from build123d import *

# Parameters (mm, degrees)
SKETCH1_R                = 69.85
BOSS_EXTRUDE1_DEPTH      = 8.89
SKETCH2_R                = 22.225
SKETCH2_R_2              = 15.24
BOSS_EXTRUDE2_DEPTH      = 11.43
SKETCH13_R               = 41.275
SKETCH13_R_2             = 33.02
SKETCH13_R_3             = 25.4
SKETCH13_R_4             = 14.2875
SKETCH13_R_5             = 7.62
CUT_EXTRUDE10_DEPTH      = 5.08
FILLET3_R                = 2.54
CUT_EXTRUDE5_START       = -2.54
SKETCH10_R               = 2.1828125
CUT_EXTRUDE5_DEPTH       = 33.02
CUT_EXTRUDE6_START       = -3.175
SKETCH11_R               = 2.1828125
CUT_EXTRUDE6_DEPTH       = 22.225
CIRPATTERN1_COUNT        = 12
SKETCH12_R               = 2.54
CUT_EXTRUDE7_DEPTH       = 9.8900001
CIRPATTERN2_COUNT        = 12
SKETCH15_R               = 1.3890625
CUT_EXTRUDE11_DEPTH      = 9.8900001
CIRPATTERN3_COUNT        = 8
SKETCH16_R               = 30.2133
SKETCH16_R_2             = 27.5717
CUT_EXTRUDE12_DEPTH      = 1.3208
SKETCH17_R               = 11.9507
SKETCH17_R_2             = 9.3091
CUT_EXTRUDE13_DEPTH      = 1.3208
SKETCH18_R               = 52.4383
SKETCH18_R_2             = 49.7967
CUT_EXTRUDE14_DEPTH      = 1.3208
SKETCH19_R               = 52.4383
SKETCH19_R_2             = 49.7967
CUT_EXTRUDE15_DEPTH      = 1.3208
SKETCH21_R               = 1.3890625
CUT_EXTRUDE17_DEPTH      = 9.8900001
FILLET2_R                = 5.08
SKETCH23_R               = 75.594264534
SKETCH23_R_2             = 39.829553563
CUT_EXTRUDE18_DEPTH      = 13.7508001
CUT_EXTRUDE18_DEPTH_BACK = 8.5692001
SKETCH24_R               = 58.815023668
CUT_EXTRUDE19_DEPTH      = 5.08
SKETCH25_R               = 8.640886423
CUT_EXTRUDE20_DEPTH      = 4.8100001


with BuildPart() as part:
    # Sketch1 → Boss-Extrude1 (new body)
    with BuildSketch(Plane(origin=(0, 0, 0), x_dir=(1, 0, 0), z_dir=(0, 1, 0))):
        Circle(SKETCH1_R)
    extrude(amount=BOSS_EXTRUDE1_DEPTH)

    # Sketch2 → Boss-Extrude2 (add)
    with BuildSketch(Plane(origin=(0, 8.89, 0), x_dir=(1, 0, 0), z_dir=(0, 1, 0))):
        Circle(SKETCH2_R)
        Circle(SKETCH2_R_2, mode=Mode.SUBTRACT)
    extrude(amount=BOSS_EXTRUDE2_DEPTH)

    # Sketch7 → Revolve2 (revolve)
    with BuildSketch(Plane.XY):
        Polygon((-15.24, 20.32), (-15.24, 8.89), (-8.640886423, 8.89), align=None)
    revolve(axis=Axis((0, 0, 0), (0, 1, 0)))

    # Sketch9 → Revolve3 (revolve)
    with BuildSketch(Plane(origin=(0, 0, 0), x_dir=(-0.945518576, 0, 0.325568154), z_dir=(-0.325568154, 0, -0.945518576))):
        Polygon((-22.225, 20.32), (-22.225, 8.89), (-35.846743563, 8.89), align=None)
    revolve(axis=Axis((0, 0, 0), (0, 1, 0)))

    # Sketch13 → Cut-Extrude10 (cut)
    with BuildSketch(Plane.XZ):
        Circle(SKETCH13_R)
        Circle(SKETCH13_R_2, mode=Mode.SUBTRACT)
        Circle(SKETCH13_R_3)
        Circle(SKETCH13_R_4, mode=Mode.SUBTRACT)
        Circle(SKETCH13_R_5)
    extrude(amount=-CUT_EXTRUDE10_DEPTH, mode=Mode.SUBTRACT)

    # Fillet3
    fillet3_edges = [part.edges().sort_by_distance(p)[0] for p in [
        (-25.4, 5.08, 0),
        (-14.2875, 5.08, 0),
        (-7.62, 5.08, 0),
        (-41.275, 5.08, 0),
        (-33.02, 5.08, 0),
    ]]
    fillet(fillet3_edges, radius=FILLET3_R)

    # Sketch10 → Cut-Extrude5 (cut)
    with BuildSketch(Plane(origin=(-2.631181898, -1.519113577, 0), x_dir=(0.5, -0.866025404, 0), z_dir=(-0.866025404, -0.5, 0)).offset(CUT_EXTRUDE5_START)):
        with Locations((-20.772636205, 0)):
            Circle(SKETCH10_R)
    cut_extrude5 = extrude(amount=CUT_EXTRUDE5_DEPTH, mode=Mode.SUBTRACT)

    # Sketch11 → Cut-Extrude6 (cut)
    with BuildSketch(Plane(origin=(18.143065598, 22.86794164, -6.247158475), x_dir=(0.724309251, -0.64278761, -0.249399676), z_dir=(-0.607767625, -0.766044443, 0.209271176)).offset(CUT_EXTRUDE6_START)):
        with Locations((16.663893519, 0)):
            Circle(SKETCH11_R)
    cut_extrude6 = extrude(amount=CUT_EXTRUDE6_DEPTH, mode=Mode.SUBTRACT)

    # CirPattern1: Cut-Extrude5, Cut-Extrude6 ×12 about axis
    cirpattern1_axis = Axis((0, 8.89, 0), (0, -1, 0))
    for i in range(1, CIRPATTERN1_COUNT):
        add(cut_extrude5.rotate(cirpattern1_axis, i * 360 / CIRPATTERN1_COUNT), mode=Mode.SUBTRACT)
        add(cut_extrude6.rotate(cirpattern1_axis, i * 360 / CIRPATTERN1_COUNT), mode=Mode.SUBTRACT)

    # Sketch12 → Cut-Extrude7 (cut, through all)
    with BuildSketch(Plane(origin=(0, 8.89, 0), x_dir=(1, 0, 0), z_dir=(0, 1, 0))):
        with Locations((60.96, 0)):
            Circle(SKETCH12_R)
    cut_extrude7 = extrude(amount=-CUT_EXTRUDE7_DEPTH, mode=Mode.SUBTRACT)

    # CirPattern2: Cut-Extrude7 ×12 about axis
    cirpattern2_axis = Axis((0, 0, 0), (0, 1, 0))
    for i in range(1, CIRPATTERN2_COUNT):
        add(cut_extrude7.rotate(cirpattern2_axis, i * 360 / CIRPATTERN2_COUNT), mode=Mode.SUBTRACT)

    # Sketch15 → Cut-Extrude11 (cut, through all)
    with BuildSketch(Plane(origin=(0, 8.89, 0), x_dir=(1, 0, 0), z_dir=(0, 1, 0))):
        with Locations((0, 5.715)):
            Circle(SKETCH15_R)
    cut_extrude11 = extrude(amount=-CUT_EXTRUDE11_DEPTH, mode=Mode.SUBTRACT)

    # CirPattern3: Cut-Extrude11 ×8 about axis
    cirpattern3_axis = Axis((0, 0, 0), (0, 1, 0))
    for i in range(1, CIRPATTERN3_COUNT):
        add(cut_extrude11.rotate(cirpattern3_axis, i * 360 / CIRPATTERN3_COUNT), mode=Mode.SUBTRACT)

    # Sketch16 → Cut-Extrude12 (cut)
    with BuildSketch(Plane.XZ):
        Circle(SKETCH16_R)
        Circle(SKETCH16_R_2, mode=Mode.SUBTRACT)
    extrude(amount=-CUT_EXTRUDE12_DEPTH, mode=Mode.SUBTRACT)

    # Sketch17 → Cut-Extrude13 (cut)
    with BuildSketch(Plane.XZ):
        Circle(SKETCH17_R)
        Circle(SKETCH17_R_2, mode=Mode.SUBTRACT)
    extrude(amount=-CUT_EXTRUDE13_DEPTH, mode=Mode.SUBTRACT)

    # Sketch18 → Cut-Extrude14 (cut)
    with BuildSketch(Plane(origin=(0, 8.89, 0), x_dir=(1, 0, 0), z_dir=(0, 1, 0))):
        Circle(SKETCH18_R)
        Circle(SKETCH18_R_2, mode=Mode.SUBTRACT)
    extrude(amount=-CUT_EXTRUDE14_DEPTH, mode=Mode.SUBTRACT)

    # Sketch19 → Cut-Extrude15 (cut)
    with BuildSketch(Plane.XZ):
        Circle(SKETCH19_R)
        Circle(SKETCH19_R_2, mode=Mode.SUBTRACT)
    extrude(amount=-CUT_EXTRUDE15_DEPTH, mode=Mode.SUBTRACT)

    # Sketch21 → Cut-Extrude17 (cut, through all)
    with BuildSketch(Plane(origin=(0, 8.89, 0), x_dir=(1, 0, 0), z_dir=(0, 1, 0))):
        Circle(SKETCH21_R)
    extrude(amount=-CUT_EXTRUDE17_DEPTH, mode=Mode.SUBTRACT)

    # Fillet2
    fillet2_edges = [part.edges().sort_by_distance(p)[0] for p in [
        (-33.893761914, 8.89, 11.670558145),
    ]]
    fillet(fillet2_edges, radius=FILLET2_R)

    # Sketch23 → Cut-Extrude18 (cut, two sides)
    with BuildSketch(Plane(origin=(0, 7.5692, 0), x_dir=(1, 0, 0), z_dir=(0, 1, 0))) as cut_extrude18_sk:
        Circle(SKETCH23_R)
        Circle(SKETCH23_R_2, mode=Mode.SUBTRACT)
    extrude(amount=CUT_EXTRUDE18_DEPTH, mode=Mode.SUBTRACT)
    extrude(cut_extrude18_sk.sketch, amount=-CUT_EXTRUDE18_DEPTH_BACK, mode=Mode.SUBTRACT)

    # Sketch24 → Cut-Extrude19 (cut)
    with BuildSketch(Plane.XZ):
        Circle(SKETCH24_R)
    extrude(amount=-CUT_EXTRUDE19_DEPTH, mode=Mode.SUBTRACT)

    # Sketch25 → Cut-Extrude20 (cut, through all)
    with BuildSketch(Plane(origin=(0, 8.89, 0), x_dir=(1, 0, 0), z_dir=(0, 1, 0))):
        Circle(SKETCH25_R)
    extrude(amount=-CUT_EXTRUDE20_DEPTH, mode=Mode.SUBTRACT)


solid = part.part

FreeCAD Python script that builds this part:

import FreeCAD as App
import Part
import Sketcher
from FreeCAD import Vector
Q = App.Units.Quantity


def edges_at(feature, points):
    """Names of the edges that pass closest to the given points."""
    edges = feature.Shape.Edges
    near = lambda p: min(range(len(edges)), key=lambda i: edges[i].distToShape(Part.Vertex(*p))[0])
    return sorted({f"Edge{near(p) + 1}" for p in points})

doc = App.newDocument("Part")
body = doc.addObject("PartDesign::Body", "Body")

sketch1 = body.newObject("Sketcher::SketchObject", "Sketch")
sketch1.AttachmentSupport = (doc.getObject("XZ_Plane"), [""])
sketch1.MapMode = "FlatFace"
sketch1.addGeometry(Part.Circle(Vector(0, 0, 0), Vector(0, 0, 1), 69.85), False)
sketch1.addConstraint(Sketcher.Constraint("Coincident", 0, 3, -1, 1))
sketch1.addConstraint(Sketcher.Constraint("Diameter", 0, Q("5.5 in")))
pad1 = body.newObject("PartDesign::Pad", "Pad")
pad1.Profile = sketch1
pad1.Length = Q("0.35 in")
pad1.Reversed = True

sketch2 = body.newObject("Sketcher::SketchObject", "Sketch001")
sketch2.AttachmentSupport = (doc.getObject("XZ_Plane"), [""])
sketch2.MapMode = "FlatFace"
sketch2.AttachmentOffset = App.Placement(Vector(0, 0, -0.35 * 25.4), App.Rotation())
sketch2.addGeometry(Part.Circle(Vector(0, 0, 0), Vector(0, 0, 1), 22.225), False)
sketch2.addGeometry(Part.Circle(Vector(0, 0, 0), Vector(0, 0, 1), 15.24), False)
sketch2.addConstraint(Sketcher.Constraint("Coincident", 0, 3, -1, 1))
sketch2.addConstraint(Sketcher.Constraint("Coincident", 1, 3, -1, 1))
sketch2.addConstraint(Sketcher.Constraint("Diameter", 1, Q("1.2 in")))
sketch2.addConstraint(Sketcher.Constraint("Diameter", 0, Q("1.75 in")))
pad2 = body.newObject("PartDesign::Pad", "Pad001")
pad2.Profile = sketch2
pad2.Length = Q("0.45 in")
pad2.Reversed = True

sketch3 = body.newObject("Sketcher::SketchObject", "Sketch002")
sketch3.AttachmentSupport = (doc.getObject("XY_Plane"), [""])
sketch3.MapMode = "FlatFace"
sketch3.addGeometry(Part.LineSegment(Vector(-15.24, 20.32, 0), Vector(-15.24, 8.89, 0)), False)
sketch3.addGeometry(Part.LineSegment(Vector(-15.24, 8.89, 0), Vector(-8.640886, 8.89, 0)), False)
sketch3.addGeometry(Part.LineSegment(Vector(-8.640886, 8.89, 0), Vector(-15.24, 20.32, 0)), False)
sketch3.addConstraint(Sketcher.Constraint("Coincident", 0, 2, 1, 1))
sketch3.addConstraint(Sketcher.Constraint("Coincident", 1, 2, 2, 1))
sketch3.addConstraint(Sketcher.Constraint("Coincident", 2, 2, 0, 1))
sketch3.addConstraint(Sketcher.Constraint("Vertical", 0))
sketch3.addConstraint(Sketcher.Constraint("Horizontal", 1))
sketch3.addConstraint(Sketcher.Constraint("Angle", 2, Q("120 deg")))
sketch3.addConstraint(Sketcher.Constraint("DistanceY", 0, 2, 0, 1, Q("0.45 in")))
sketch3.addConstraint(Sketcher.Constraint("DistanceX", 0, 2, -1, 1, Q("0.6 in")))
sketch3.addConstraint(Sketcher.Constraint("DistanceY", -1, 1, 2, 2, Q("0.8 in")))
revolution = body.newObject("PartDesign::Revolution", "Revolution")
revolution.Profile = sketch3
revolution.ReferenceAxis = (sketch3, ["V_Axis"])
revolution.Angle = 360

sketch4 = body.newObject("Sketcher::SketchObject", "Sketch003")
sketch4.Placement = App.Placement(Vector(0, 0, 0), App.Rotation(Vector(-0.945518576, 0, 0.325568154), Vector(0, 1, 0), Vector(-0.325568154, 0, -0.945518576), "ZXY"))
sketch4.addGeometry(Part.LineSegment(Vector(-22.225, 8.89, 0), Vector(-22.225, 20.32, 0)), False)
sketch4.addGeometry(Part.LineSegment(Vector(-22.225, 20.32, 0), Vector(-35.846744, 8.89, 0)), False)
sketch4.addGeometry(Part.LineSegment(Vector(-35.846744, 8.89, 0), Vector(-22.225, 8.89, 0)), False)
sketch4.addConstraint(Sketcher.Constraint("Coincident", 0, 2, 1, 1))
sketch4.addConstraint(Sketcher.Constraint("Coincident", 1, 2, 2, 1))
sketch4.addConstraint(Sketcher.Constraint("Coincident", 2, 2, 0, 1))
sketch4.addConstraint(Sketcher.Constraint("Vertical", 0))
sketch4.addConstraint(Sketcher.Constraint("Horizontal", 2))
sketch4.addConstraint(Sketcher.Constraint("Angle", 1, Q("-140 deg")))
sketch4.addConstraint(Sketcher.Constraint("DistanceY", 0, 1, 0, 2, Q("0.45 in")))
sketch4.addConstraint(Sketcher.Constraint("DistanceY", -1, 1, 0, 2, Q("0.8 in")))
sketch4.addConstraint(Sketcher.Constraint("DistanceX", 0, 2, -1, 1, Q("0.875 in")))
revolution2 = body.newObject("PartDesign::Revolution", "Revolution001")
revolution2.Profile = sketch4
revolution2.ReferenceAxis = (sketch4, ["V_Axis"])
revolution2.Angle = 360

sketch5 = body.newObject("Sketcher::SketchObject", "Sketch004")
sketch5.AttachmentSupport = (doc.getObject("XZ_Plane"), [""])
sketch5.MapMode = "FlatFace"
sketch5.addGeometry(Part.Circle(Vector(0, 0, 0), Vector(0, 0, 1), 41.275), False)
sketch5.addGeometry(Part.Circle(Vector(0, 0, 0), Vector(0, 0, 1), 33.02), False)
sketch5.addGeometry(Part.Circle(Vector(0, 0, 0), Vector(0, 0, 1), 25.4), False)
sketch5.addGeometry(Part.Circle(Vector(0, 0, 0), Vector(0, 0, 1), 14.2875), False)
sketch5.addGeometry(Part.Circle(Vector(0, 0, 0), Vector(0, 0, 1), 7.62), False)
sketch5.addConstraint(Sketcher.Constraint("Coincident", 0, 3, -1, 1))
sketch5.addConstraint(Sketcher.Constraint("Coincident", 1, 3, -1, 1))
sketch5.addConstraint(Sketcher.Constraint("Coincident", 2, 3, -1, 1))
sketch5.addConstraint(Sketcher.Constraint("Coincident", 3, 3, -1, 1))
sketch5.addConstraint(Sketcher.Constraint("Coincident", 4, 3, -1, 1))
sketch5.addConstraint(Sketcher.Constraint("Diameter", 2, Q("2 in")))
sketch5.addConstraint(Sketcher.Constraint("Diameter", 1, Q("2.6 in")))
sketch5.addConstraint(Sketcher.Constraint("Diameter", 4, Q("0.6 in")))
sketch5.addConstraint(Sketcher.Constraint("Diameter", 0, Q("3.25 in")))
sketch5.addConstraint(Sketcher.Constraint("Diameter", 3, Q("1.125 in")))
pocket1 = body.newObject("PartDesign::Pocket", "Pocket")
pocket1.Profile = sketch5
pocket1.Length = Q("0.2 in")
doc.recompute()

fillet = body.newObject("PartDesign::Fillet", "Fillet")
fillet.Base = (pocket1, edges_at(pocket1, [
    (-25.4, 5.08, 0),
    (-14.287, 5.08, 0),
    (-7.62, 5.08, 0),
    (-41.275, 5.08, 0),
    (-33.02, 5.08, 0),
]))
fillet.Radius = Q("0.1 in")

sketch6 = body.newObject("Sketcher::SketchObject", "Sketch005")
sketch6.Placement = App.Placement(Vector(-0.431477, -0.249114, 0), App.Rotation(Vector(0.5, -0.866025404, 0), Vector(0, 0, 1), Vector(-0.866025404, -0.5, 0), "ZXY"))
sketch6.addGeometry(Part.Circle(Vector(-20.772636, 0, 0), Vector(0, 0, 1), 2.182812), False)
sketch6.addConstraint(Sketcher.Constraint("PointOnObject", 0, 3, -1))
sketch6.addConstraint(Sketcher.Constraint("Diameter", 0, Q("0.171875 in")))
sketch6.addConstraint(Sketcher.Constraint("DistanceX", 0, 3, -1, 1, 20.772636))
pocket2 = body.newObject("PartDesign::Pocket", "Pocket001")
pocket2.Profile = sketch6
pocket2.Length = Q("1.3 in")
pocket2.Reversed = True

sketch7 = body.newObject("Sketcher::SketchObject", "Sketch006")
sketch7.Placement = App.Placement(Vector(20.072728, 25.300133, -6.911594), App.Rotation(Vector(0.724309251, -0.64278761, -0.249399676), Vector(0.325568155, 0, 0.945518576), Vector(-0.607767625, -0.766044443, 0.209271176), "ZXY"))
sketch7.addGeometry(Part.Circle(Vector(16.663894, 0, 0), Vector(0, 0, 1), 2.182812), False)
sketch7.addConstraint(Sketcher.Constraint("PointOnObject", 0, 3, -1))
sketch7.addConstraint(Sketcher.Constraint("Diameter", 0, Q("0.171875 in")))
sketch7.addConstraint(Sketcher.Constraint("DistanceX", -1, 1, 0, 3, 16.663894))
pocket3 = body.newObject("PartDesign::Pocket", "Pocket002")
pocket3.Profile = sketch7
pocket3.Length = Q("0.875 in")
pocket3.Reversed = True
doc.recompute()

polarpattern = body.newObject("PartDesign::PolarPattern", "PolarPattern")
polarpattern.Originals = [pocket2, pocket3]
polarpattern.Axis = (doc.getObject("Y_Axis"), [""])
polarpattern.Angle = 360
polarpattern.Occurrences = 12
body.Tip = polarpattern

sketch8 = body.newObject("Sketcher::SketchObject", "Sketch007")
sketch8.AttachmentSupport = (doc.getObject("XZ_Plane"), [""])
sketch8.MapMode = "FlatFace"
sketch8.AttachmentOffset = App.Placement(Vector(0, 0, -0.35 * 25.4), App.Rotation())
sketch8.addGeometry(Part.Circle(Vector(60.96, 0, 0), Vector(0, 0, 1), 2.54), False)
sketch8.addConstraint(Sketcher.Constraint("PointOnObject", 0, 3, -1))
sketch8.addConstraint(Sketcher.Constraint("Diameter", 0, Q("0.2 in")))
sketch8.addConstraint(Sketcher.Constraint("DistanceX", -1, 1, 0, 3, Q("2.4 in")))
pocket4 = body.newObject("PartDesign::Pocket", "Pocket003")
pocket4.Profile = sketch8
pocket4.Type = "ThroughAll"
pocket4.Reversed = True
doc.recompute()

polarpattern2 = body.newObject("PartDesign::PolarPattern", "PolarPattern001")
polarpattern2.Originals = [pocket4]
polarpattern2.Axis = (doc.getObject("Y_Axis"), [""])
polarpattern2.Angle = 360
polarpattern2.Occurrences = 12
body.Tip = polarpattern2

sketch9 = body.newObject("Sketcher::SketchObject", "Sketch008")
sketch9.AttachmentSupport = (doc.getObject("XZ_Plane"), [""])
sketch9.MapMode = "FlatFace"
sketch9.AttachmentOffset = App.Placement(Vector(0, 0, -0.35 * 25.4), App.Rotation())
sketch9.addGeometry(Part.Circle(Vector(0, -5.715, 0), Vector(0, 0, 1), 1.389063), False)
sketch9.addConstraint(Sketcher.Constraint("PointOnObject", 0, 3, -2))
sketch9.addConstraint(Sketcher.Constraint("Diameter", 0, Q("0.109375 in")))
sketch9.addConstraint(Sketcher.Constraint("DistanceY", 0, 3, -1, 1, Q("0.225 in")))
pocket5 = body.newObject("PartDesign::Pocket", "Pocket004")
pocket5.Profile = sketch9
pocket5.Type = "ThroughAll"
pocket5.Reversed = True
doc.recompute()

polarpattern3 = body.newObject("PartDesign::PolarPattern", "PolarPattern002")
polarpattern3.Originals = [pocket5]
polarpattern3.Axis = (doc.getObject("Y_Axis"), [""])
polarpattern3.Angle = 360
polarpattern3.Occurrences = 8
body.Tip = polarpattern3

sketch10 = body.newObject("Sketcher::SketchObject", "Sketch009")
sketch10.AttachmentSupport = (doc.getObject("XZ_Plane"), [""])
sketch10.MapMode = "FlatFace"
sketch10.addGeometry(Part.Circle(Vector(0, 0, 0), Vector(0, 0, 1), 30.2133), False)
sketch10.addGeometry(Part.Circle(Vector(0, 0, 0), Vector(0, 0, 1), 27.5717), False)
sketch10.addConstraint(Sketcher.Constraint("Coincident", 0, 3, -1, 1))
sketch10.addConstraint(Sketcher.Constraint("Coincident", 1, 3, -1, 1))
sketch10.addConstraint(Sketcher.Constraint("Diameter", 0, Q("2.379 in")))
sketch10.addConstraint(Sketcher.Constraint("Diameter", 1, Q("2.171 in")))
pocket6 = body.newObject("PartDesign::Pocket", "Pocket005")
pocket6.Profile = sketch10
pocket6.Length = Q("0.052 in")

sketch11 = body.newObject("Sketcher::SketchObject", "Sketch010")
sketch11.AttachmentSupport = (doc.getObject("XZ_Plane"), [""])
sketch11.MapMode = "FlatFace"
sketch11.addGeometry(Part.Circle(Vector(0, 0, 0), Vector(0, 0, 1), 11.9507), False)
sketch11.addGeometry(Part.Circle(Vector(0, 0, 0), Vector(0, 0, 1), 9.3091), False)
sketch11.addConstraint(Sketcher.Constraint("Coincident", 0, 3, -1, 1))
sketch11.addConstraint(Sketcher.Constraint("Coincident", 1, 3, -1, 1))
sketch11.addConstraint(Sketcher.Constraint("Diameter", 0, Q("0.941 in")))
sketch11.addConstraint(Sketcher.Constraint("Diameter", 1, Q("0.733 in")))
pocket7 = body.newObject("PartDesign::Pocket", "Pocket006")
pocket7.Profile = sketch11
pocket7.Length = Q("0.052 in")

sketch12 = body.newObject("Sketcher::SketchObject", "Sketch011")
sketch12.AttachmentSupport = (doc.getObject("XZ_Plane"), [""])
sketch12.MapMode = "FlatFace"
sketch12.AttachmentOffset = App.Placement(Vector(0, 0, -0.35 * 25.4), App.Rotation())
sketch12.addGeometry(Part.Circle(Vector(0, 0, 0), Vector(0, 0, 1), 52.4383), False)
sketch12.addGeometry(Part.Circle(Vector(0, 0, 0), Vector(0, 0, 1), 49.7967), False)
sketch12.addConstraint(Sketcher.Constraint("Coincident", 0, 3, -1, 1))
sketch12.addConstraint(Sketcher.Constraint("Coincident", 1, 3, -1, 1))
sketch12.addConstraint(Sketcher.Constraint("Diameter", 0, Q("4.129 in")))
sketch12.addConstraint(Sketcher.Constraint("Diameter", 1, Q("3.921 in")))
pocket8 = body.newObject("PartDesign::Pocket", "Pocket007")
pocket8.Profile = sketch12
pocket8.Length = Q("0.052 in")
pocket8.Reversed = True

sketch13 = body.newObject("Sketcher::SketchObject", "Sketch012")
sketch13.AttachmentSupport = (doc.getObject("XZ_Plane"), [""])
sketch13.MapMode = "FlatFace"
sketch13.addGeometry(Part.Circle(Vector(0, 0, 0), Vector(0, 0, 1), 52.4383), False)
sketch13.addGeometry(Part.Circle(Vector(0, 0, 0), Vector(0, 0, 1), 49.7967), False)
sketch13.addConstraint(Sketcher.Constraint("Coincident", 0, 3, -1, 1))
sketch13.addConstraint(Sketcher.Constraint("Coincident", 1, 3, -1, 1))
sketch13.addConstraint(Sketcher.Constraint("Diameter", 0, Q("4.129 in")))
sketch13.addConstraint(Sketcher.Constraint("Diameter", 1, Q("3.921 in")))
pocket9 = body.newObject("PartDesign::Pocket", "Pocket008")
pocket9.Profile = sketch13
pocket9.Length = Q("0.052 in")

sketch14 = body.newObject("Sketcher::SketchObject", "Sketch013")
sketch14.AttachmentSupport = (doc.getObject("XZ_Plane"), [""])
sketch14.MapMode = "FlatFace"
sketch14.AttachmentOffset = App.Placement(Vector(0, 0, -0.35 * 25.4), App.Rotation())
sketch14.addGeometry(Part.Circle(Vector(0, 0, 0), Vector(0, 0, 1), 1.389063), False)
sketch14.addConstraint(Sketcher.Constraint("Coincident", 0, 3, -1, 1))
sketch14.addConstraint(Sketcher.Constraint("Diameter", 0, Q("0.109375 in")))
pocket10 = body.newObject("PartDesign::Pocket", "Pocket009")
pocket10.Profile = sketch14
pocket10.Type = "ThroughAll"
pocket10.Reversed = True
doc.recompute()

fillet2 = body.newObject("PartDesign::Fillet", "Fillet001")
fillet2.Base = (pocket10, edges_at(pocket10, [(-33.894, 8.89, 11.671)]))
fillet2.Radius = Q("0.2 in")

sketch15 = body.newObject("Sketcher::SketchObject", "Sketch014")
sketch15.AttachmentSupport = (doc.getObject("XZ_Plane"), [""])
sketch15.MapMode = "FlatFace"
sketch15.AttachmentOffset = App.Placement(Vector(0, 0, -0.298 * 25.4), App.Rotation())
sketch15.addGeometry(Part.Circle(Vector(0, 0, 0), Vector(0, 0, 1), 75.594265), False)
sketch15.addGeometry(Part.Circle(Vector(0, 0, 0), Vector(0, 0, 1), 39.829554), False)
sketch15.addConstraint(Sketcher.Constraint("Coincident", 0, 3, -1, 1))
sketch15.addConstraint(Sketcher.Constraint("Coincident", 1, 3, -1, 1))
sketch15.addConstraint(Sketcher.Constraint("Diameter", 0, 151.188529))
sketch15.addConstraint(Sketcher.Constraint("Diameter", 1, 79.659107))
pocket11 = body.newObject("PartDesign::Pocket", "Pocket010")
pocket11.Profile = sketch15
pocket11.Type = "ThroughAll"
pocket11.Midplane = True

sketch16 = body.newObject("Sketcher::SketchObject", "Sketch015")
sketch16.AttachmentSupport = (doc.getObject("XZ_Plane"), [""])
sketch16.MapMode = "FlatFace"
sketch16.addGeometry(Part.Circle(Vector(0, 0, 0), Vector(0, 0, 1), 58.815024), False)
sketch16.addConstraint(Sketcher.Constraint("Coincident", 0, 3, -1, 1))
sketch16.addConstraint(Sketcher.Constraint("Diameter", 0, 117.630047))
pocket12 = body.newObject("PartDesign::Pocket", "Pocket011")
pocket12.Profile = sketch16
pocket12.Length = Q("0.2 in")

sketch17 = body.newObject("Sketcher::SketchObject", "Sketch016")
sketch17.AttachmentSupport = (doc.getObject("XZ_Plane"), [""])
sketch17.MapMode = "FlatFace"
sketch17.AttachmentOffset = App.Placement(Vector(0, 0, -0.35 * 25.4), App.Rotation())
sketch17.addGeometry(Part.Circle(Vector(0, 0, 0), Vector(0, 0, 1), 8.640886), False)
sketch17.addConstraint(Sketcher.Constraint("Coincident", 0, 3, -1, 1))
sketch17.addConstraint(Sketcher.Constraint("Diameter", 0, 17.281773))
pocket13 = body.newObject("PartDesign::Pocket", "Pocket012")
pocket13.Profile = sketch17
pocket13.Type = "ThroughAll"
pocket13.Reversed = True

doc.recompute()
